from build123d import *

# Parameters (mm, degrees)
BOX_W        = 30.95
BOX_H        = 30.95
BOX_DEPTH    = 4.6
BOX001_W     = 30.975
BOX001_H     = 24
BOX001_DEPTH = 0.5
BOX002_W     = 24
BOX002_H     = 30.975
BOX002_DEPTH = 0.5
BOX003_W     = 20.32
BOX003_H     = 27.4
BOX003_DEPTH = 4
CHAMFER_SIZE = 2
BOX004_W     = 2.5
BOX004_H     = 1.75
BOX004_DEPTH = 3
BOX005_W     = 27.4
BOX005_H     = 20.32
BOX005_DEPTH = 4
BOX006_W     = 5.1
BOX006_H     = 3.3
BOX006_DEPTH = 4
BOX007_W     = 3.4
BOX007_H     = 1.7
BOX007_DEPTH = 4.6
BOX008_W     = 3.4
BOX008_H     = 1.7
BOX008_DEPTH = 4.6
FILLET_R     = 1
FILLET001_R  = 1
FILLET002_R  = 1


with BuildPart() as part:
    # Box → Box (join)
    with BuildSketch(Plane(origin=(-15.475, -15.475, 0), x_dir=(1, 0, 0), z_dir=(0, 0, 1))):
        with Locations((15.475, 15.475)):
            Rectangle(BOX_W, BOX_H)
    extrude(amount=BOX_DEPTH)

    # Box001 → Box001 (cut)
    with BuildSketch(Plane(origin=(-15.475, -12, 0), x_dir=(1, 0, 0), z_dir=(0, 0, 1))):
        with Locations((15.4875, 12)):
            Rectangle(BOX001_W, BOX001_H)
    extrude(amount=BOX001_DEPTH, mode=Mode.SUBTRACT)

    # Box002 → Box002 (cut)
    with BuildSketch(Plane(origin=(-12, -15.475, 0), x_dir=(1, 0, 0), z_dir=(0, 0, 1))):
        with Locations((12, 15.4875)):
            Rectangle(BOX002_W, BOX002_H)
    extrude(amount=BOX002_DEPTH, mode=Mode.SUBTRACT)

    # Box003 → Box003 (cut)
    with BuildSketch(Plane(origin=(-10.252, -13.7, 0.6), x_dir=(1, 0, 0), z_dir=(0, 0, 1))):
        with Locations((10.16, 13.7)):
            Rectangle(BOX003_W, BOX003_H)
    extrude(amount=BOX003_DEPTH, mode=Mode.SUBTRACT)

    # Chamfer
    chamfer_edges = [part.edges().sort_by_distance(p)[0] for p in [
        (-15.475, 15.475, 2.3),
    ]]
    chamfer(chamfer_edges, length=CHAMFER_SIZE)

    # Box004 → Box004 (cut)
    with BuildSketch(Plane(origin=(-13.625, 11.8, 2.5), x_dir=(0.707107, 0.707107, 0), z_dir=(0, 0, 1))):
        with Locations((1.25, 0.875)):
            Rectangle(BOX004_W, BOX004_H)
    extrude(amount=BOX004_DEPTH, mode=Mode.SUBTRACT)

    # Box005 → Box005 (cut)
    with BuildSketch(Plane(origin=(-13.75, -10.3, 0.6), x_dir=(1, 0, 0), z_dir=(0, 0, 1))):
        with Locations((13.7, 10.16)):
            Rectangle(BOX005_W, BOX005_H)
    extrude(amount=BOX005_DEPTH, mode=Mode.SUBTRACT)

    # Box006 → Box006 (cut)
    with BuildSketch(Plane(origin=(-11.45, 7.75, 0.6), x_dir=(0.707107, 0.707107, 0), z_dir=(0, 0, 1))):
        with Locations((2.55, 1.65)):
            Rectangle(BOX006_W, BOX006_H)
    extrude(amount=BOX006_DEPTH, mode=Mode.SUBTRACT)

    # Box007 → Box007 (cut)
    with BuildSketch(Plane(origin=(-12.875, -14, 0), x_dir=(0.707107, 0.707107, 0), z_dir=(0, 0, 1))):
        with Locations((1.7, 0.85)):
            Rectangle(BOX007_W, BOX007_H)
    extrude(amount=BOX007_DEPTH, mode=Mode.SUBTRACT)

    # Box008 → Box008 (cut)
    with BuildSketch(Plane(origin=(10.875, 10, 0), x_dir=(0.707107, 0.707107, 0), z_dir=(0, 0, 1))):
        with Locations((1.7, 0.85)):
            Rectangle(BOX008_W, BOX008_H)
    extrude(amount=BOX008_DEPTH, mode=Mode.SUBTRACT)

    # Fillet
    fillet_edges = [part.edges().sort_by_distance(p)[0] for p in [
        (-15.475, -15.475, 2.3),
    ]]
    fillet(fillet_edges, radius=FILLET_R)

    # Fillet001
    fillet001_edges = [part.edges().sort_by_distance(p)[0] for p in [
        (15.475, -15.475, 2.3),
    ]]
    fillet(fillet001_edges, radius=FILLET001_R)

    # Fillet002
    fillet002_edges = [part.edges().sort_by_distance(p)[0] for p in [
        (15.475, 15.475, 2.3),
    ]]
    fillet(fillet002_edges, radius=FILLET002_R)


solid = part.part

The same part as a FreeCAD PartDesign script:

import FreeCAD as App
import Part
import Sketcher
from FreeCAD import Vector
Q = App.Units.Quantity


def edges_at(feature, points):
    """Names of the edges that pass closest to the given points."""
    edges = feature.Shape.Edges
    near = lambda p: min(range(len(edges)), key=lambda i: edges[i].distToShape(Part.Vertex(*p))[0])
    return sorted({f"Edge{near(p) + 1}" for p in points})

doc = App.newDocument("Part")
body = doc.addObject("PartDesign::Body", "Body")

sketch1 = body.newObject("Sketcher::SketchObject", "Sketch")
sketch1.AttachmentSupport = (doc.getObject("XY_Plane"), [""])
sketch1.MapMode = "FlatFace"
sketch1.addGeometry(Part.LineSegment(Vector(-15, 15, 0), Vector(-15, -15, 0)), False)
sketch1.addGeometry(Part.LineSegment(Vector(-15, -15, 0), Vector(15, -15, 0)), False)
sketch1.addGeometry(Part.LineSegment(Vector(15, -15, 0), Vector(15, 15, 0)), False)
sketch1.addGeometry(Part.LineSegment(Vector(15, 15, 0), Vector(-15, 15, 0)), False)
sketch1.addConstraint(Sketcher.Constraint("Coincident", 0, 2, 1, 1))
sketch1.addConstraint(Sketcher.Constraint("Coincident", 1, 2, 2, 1))
sketch1.addConstraint(Sketcher.Constraint("Coincident", 2, 2, 3, 1))
sketch1.addConstraint(Sketcher.Constraint("Coincident", 3, 2, 0, 1))
sketch1.addConstraint(Sketcher.Constraint("Vertical", 0))
sketch1.addConstraint(Sketcher.Constraint("Horizontal", 1))
sketch1.addConstraint(Sketcher.Constraint("Vertical", 2))
sketch1.addConstraint(Sketcher.Constraint("Horizontal", 3))
sketch1.addConstraint(Sketcher.Constraint("Symmetric", 0, 2, 2, 2, -1, 1))
sketch1.addConstraint(Sketcher.Constraint("Equal", 3, 0))
sketch1.addConstraint(Sketcher.Constraint("DistanceX", 1, 1, 1, 2, Q("30.95 mm")))
pad1 = body.newObject("PartDesign::Pad", "Pad")
pad1.Profile = sketch1
pad1.Length = 4.6

sketch2 = body.newObject("Sketcher::SketchObject", "Sketch001")
sketch2.AttachmentSupport = (doc.getObject("XY_Plane"), [""])
sketch2.MapMode = "FlatFace"
sketch2.addGeometry(Part.LineSegment(Vector(-15, 12, 0), Vector(-15, -12, 0)), False)
sketch2.addGeometry(Part.LineSegment(Vector(-15, -12, 0), Vector(16, -12, 0)), False)
sketch2.addGeometry(Part.LineSegment(Vector(16, -12, 0), Vector(16, 12, 0)), False)
sketch2.addGeometry(Part.LineSegment(Vector(16, 12, 0), Vector(-15, 12, 0)), False)
sketch2.addConstraint(Sketcher.Constraint("Coincident", 0, 2, 1, 1))
sketch2.addConstraint(Sketcher.Constraint("Coincident", 1, 2, 2, 1))
sketch2.addConstraint(Sketcher.Constraint("Coincident", 2, 2, 3, 1))
sketch2.addConstraint(Sketcher.Constraint("Coincident", 3, 2, 0, 1))
sketch2.addConstraint(Sketcher.Constraint("Vertical", 0))
sketch2.addConstraint(Sketcher.Constraint("Horizontal", 1))
sketch2.addConstraint(Sketcher.Constraint("Vertical", 2))
sketch2.addConstraint(Sketcher.Constraint("Horizontal", 3))
sketch2.addConstraint(Sketcher.Constraint("DistanceY", 0, 2, 0, 1, Q("24 mm")))
sketch2.addConstraint(Sketcher.Constraint("DistanceY", 0, 2, -1, 1, Q("12 mm")))
sketch2.addConstraint(Sketcher.Constraint("DistanceX", -1, 1, 1, 2, Q("15.5 mm")))
sketch2.addConstraint(Sketcher.Constraint("DistanceX", 1, 1, 1, 2, Q("30.975 mm")))
pocket1 = body.newObject("PartDesign::Pocket", "Pocket")
pocket1.Profile = sketch2
pocket1.Length = 0.5
pocket1.Reversed = True

sketch3 = body.newObject("Sketcher::SketchObject", "Sketch002")
sketch3.AttachmentSupport = (doc.getObject("XY_Plane"), [""])
sketch3.MapMode = "FlatFace"
sketch3.addGeometry(Part.LineSegment(Vector(-12, 16, 0), Vector(-12, -15, 0)), False)
sketch3.addGeometry(Part.LineSegment(Vector(-12, -15, 0), Vector(12, -15, 0)), False)
sketch3.addGeometry(Part.LineSegment(Vector(12, -15, 0), Vector(12, 16, 0)), False)
sketch3.addGeometry(Part.LineSegment(Vector(12, 16, 0), Vector(-12, 16, 0)), False)
sketch3.addConstraint(Sketcher.Constraint("Coincident", 0, 2, 1, 1))
sketch3.addConstraint(Sketcher.Constraint("Coincident", 1, 2, 2, 1))
sketch3.addConstraint(Sketcher.Constraint("Coincident", 2, 2, 3, 1))
sketch3.addConstraint(Sketcher.Constraint("Coincident", 3, 2, 0, 1))
sketch3.addConstraint(Sketcher.Constraint("Vertical", 0))
sketch3.addConstraint(Sketcher.Constraint("Horizontal", 1))
sketch3.addConstraint(Sketcher.Constraint("Vertical", 2))
sketch3.addConstraint(Sketcher.Constraint("Horizontal", 3))
sketch3.addConstraint(Sketcher.Constraint("DistanceX", 1, 1, 1, 2, Q("24 mm")))
sketch3.addConstraint(Sketcher.Constraint("DistanceX", 0, 2, -1, 1, Q("12 mm")))
sketch3.addConstraint(Sketcher.Constraint("DistanceY", -1, 1, 2, 2, Q("15.5 mm")))
sketch3.addConstraint(Sketcher.Constraint("DistanceY", 0, 2, 0, 1, Q("30.975 mm")))
pocket2 = body.newObject("PartDesign::Pocket", "Pocket001")
pocket2.Profile = sketch3
pocket2.Length = 0.5
pocket2.Reversed = True

sketch4 = body.newObject("Sketcher::SketchObject", "Sketch003")
sketch4.AttachmentSupport = (doc.getObject("XY_Plane"), [""])
sketch4.MapMode = "FlatFace"
sketch4.AttachmentOffset = App.Placement(Vector(0, 0, 0.6), App.Rotation())
sketch4.addGeometry(Part.LineSegment(Vector(-10, 14, 0), Vector(-10, -14, 0)), False)
sketch4.addGeometry(Part.LineSegment(Vector(-10, -14, 0), Vector(10, -14, 0)), False)
sketch4.addGeometry(Part.LineSegment(Vector(10, -14, 0), Vector(10, 14, 0)), False)
sketch4.addGeometry(Part.LineSegment(Vector(10, 14, 0), Vector(-10, 14, 0)), False)
sketch4.addConstraint(Sketcher.Constraint("Coincident", 0, 2, 1, 1))
sketch4.addConstraint(Sketcher.Constraint("Coincident", 1, 2, 2, 1))
sketch4.addConstraint(Sketcher.Constraint("Coincident", 2, 2, 3, 1))
sketch4.addConstraint(Sketcher.Constraint("Coincident", 3, 2, 0, 1))
sketch4.addConstraint(Sketcher.Constraint("Vertical", 0))
sketch4.addConstraint(Sketcher.Constraint("Horizontal", 1))
sketch4.addConstraint(Sketcher.Constraint("Vertical", 2))
sketch4.addConstraint(Sketcher.Constraint("Horizontal", 3))
sketch4.addConstraint(Sketcher.Constraint("DistanceY", 0, 2, 0, 1, Q("27.4 mm")))
sketch4.addConstraint(Sketcher.Constraint("DistanceX", 1, 1, 1, 2, Q("20.32 mm")))
sketch4.addConstraint(Sketcher.Constraint("DistanceY", 0, 2, -1, 1, Q("13.7 mm")))
sketch4.addConstraint(Sketcher.Constraint("DistanceX", 0, 2, -1, 1, Q("10.252 mm")))
pocket3 = body.newObject("PartDesign::Pocket", "Pocket002")
pocket3.Profile = sketch4
pocket3.Length = 4
pocket3.Reversed = True
doc.recompute()

chamfer = body.newObject("PartDesign::Chamfer", "Chamfer")
chamfer.Base = (pocket3, edges_at(pocket3, [(-15.475, 15.475, 2.3)]))
chamfer.Size = 2

sketch5 = body.newObject("Sketcher::SketchObject", "Sketch004")
sketch5.AttachmentSupport = (doc.getObject("XY_Plane"), [""])
sketch5.MapMode = "FlatFace"
sketch5.AttachmentOffset = App.Placement(Vector(0, 0, 2.5), App.Rotation())
sketch5.addGeometry(Part.LineSegment(Vector(-14.9, 13, 0), Vector(-13.6, 11.8, 0)), False)
sketch5.addGeometry(Part.LineSegment(Vector(-13.6, 11.8, 0), Vector(-11.9, 13.6, 0)), False)
sketch5.addGeometry(Part.LineSegment(Vector(-11.9, 13.6, 0), Vector(-13.1, 14.8, 0)), False)
sketch5.addGeometry(Part.LineSegment(Vector(-13.1, 14.8, 0), Vector(-14.9, 13, 0)), False)
sketch5.addConstraint(Sketcher.Constraint("Coincident", 0, 2, 1, 1))
sketch5.addConstraint(Sketcher.Constraint("Coincident", 1, 2, 2, 1))
sketch5.addConstraint(Sketcher.Constraint("Coincident", 2, 2, 3, 1))
sketch5.addConstraint(Sketcher.Constraint("Coincident", 3, 2, 0, 1))
sketch5.addConstraint(Sketcher.Constraint("Perpendicular", 0, 1))
sketch5.addConstraint(Sketcher.Constraint("Perpendicular", 1, 2))
sketch5.addConstraint(Sketcher.Constraint("Perpendicular", 2, 3))
sketch5.addConstraint(Sketcher.Constraint("Angle", 0, Q("-45 deg")))
sketch5.addConstraint(Sketcher.Constraint("Distance", 1, Q("2.5 mm")))
sketch5.addConstraint(Sketcher.Constraint("DistanceY", -1, 1, 0, 2, Q("11.8 mm")))
sketch5.addConstraint(Sketcher.Constraint("Distance", 0, Q("1.75 mm")))
sketch5.addConstraint(Sketcher.Constraint("DistanceX", 0, 2, -1, 1, Q("13.625 mm")))
pocket4 = body.newObject("PartDesign::Pocket", "Pocket003")
pocket4.Profile = sketch5
pocket4.Length = 3
pocket4.Reversed = True

sketch6 = body.newObject("Sketcher::SketchObject", "Sketch005")
sketch6.AttachmentSupport = (doc.getObject("XY_Plane"), [""])
sketch6.MapMode = "FlatFace"
sketch6.AttachmentOffset = App.Placement(Vector(0, 0, 0.6), App.Rotation())
sketch6.addGeometry(Part.LineSegment(Vector(-14, 10, 0), Vector(-14, -10, 0)), False)
sketch6.addGeometry(Part.LineSegment(Vector(-14, -10, 0), Vector(14, -10, 0)), False)
sketch6.addGeometry(Part.LineSegment(Vector(14, -10, 0), Vector(14, 10, 0)), False)
sketch6.addGeometry(Part.LineSegment(Vector(14, 10, 0), Vector(-14, 10, 0)), False)
sketch6.addConstraint(Sketcher.Constraint("Coincident", 0, 2, 1, 1))
sketch6.addConstraint(Sketcher.Constraint("Coincident", 1, 2, 2, 1))
sketch6.addConstraint(Sketcher.Constraint("Coincident", 2, 2, 3, 1))
sketch6.addConstraint(Sketcher.Constraint("Coincident", 3, 2, 0, 1))
sketch6.addConstraint(Sketcher.Constraint("Vertical", 0))
sketch6.addConstraint(Sketcher.Constraint("Horizontal", 1))
sketch6.addConstraint(Sketcher.Constraint("Vertical", 2))
sketch6.addConstraint(Sketcher.Constraint("Horizontal", 3))
sketch6.addConstraint(Sketcher.Constraint("DistanceX", 1, 1, 1, 2, Q("27.4 mm")))
sketch6.addConstraint(Sketcher.Constraint("DistanceY", 0, 2, 0, 1, Q("20.32 mm")))
sketch6.addConstraint(Sketcher.Constraint("DistanceY", 0, 2, -1, 1, Q("10.3 mm")))
sketch6.addConstraint(Sketcher.Constraint("DistanceX", 0, 2, -1, 1, Q("13.75 mm")))
pocket5 = body.newObject("PartDesign::Pocket", "Pocket004")
pocket5.Profile = sketch6
pocket5.Length = 4
pocket5.Reversed = True

sketch7 = body.newObject("Sketcher::SketchObject", "Sketch006")
sketch7.AttachmentSupport = (doc.getObject("XY_Plane"), [""])
sketch7.MapMode = "FlatFace"
sketch7.AttachmentOffset = App.Placement(Vector(0, 0, 0.6), App.Rotation())
sketch7.addGeometry(Part.LineSegment(Vector(-13.8, 10.1, 0), Vector(-11.4, 7.8, 0)), False)
sketch7.addGeometry(Part.LineSegment(Vector(-11.4, 7.8, 0), Vector(-7.8, 11.4, 0)), False)
sketch7.addGeometry(Part.LineSegment(Vector(-7.8, 11.4, 0), Vector(-10.2, 13.7, 0)), False)
sketch7.addGeometry(Part.LineSegment(Vector(-10.2, 13.7, 0), Vector(-13.8, 10.1, 0)), False)
sketch7.addConstraint(Sketcher.Constraint("Coincident", 0, 2, 1, 1))
sketch7.addConstraint(Sketcher.Constraint("Coincident", 1, 2, 2, 1))
sketch7.addConstraint(Sketcher.Constraint("Coincident", 2, 2, 3, 1))
sketch7.addConstraint(Sketcher.Constraint("Coincident", 3, 2, 0, 1))
sketch7.addConstraint(Sketcher.Constraint("Perpendicular", 0, 1))
sketch7.addConstraint(Sketcher.Constraint("Perpendicular", 1, 2))
sketch7.addConstraint(Sketcher.Constraint("Perpendicular", 2, 3))
sketch7.addConstraint(Sketcher.Constraint("Angle", 0, Q("-45 deg")))
sketch7.addConstraint(Sketcher.Constraint("Distance", 0, Q("3.3 mm")))
sketch7.addConstraint(Sketcher.Constraint("Distance", 1, Q("5.1 mm")))
sketch7.addConstraint(Sketcher.Constraint("DistanceX", 0, 2, -1, 1, Q("11.45 mm")))
sketch7.addConstraint(Sketcher.Constraint("DistanceY", -1, 1, 0, 2, Q("7.75 mm")))
pocket6 = body.newObject("PartDesign::Pocket", "Pocket005")
pocket6.Profile = sketch7
pocket6.Length = 4
pocket6.Reversed = True

sketch8 = body.newObject("Sketcher::SketchObject", "Sketch007")
sketch8.AttachmentSupport = (doc.getObject("XY_Plane"), [""])
sketch8.MapMode = "FlatFace"
sketch8.addGeometry(Part.LineSegment(Vector(-14.1, -12.8, 0), Vector(-12.9, -14, 0)), False)
sketch8.addGeometry(Part.LineSegment(Vector(-12.9, -14, 0), Vector(-10.5, -11.6, 0)), False)
sketch8.addGeometry(Part.LineSegment(Vector(-10.5, -11.6, 0), Vector(-11.7, -10.4, 0)), False)
sketch8.addGeometry(Part.LineSegment(Vector(-11.7, -10.4, 0), Vector(-14.1, -12.8, 0)), False)
sketch8.addConstraint(Sketcher.Constraint("Coincident", 0, 2, 1, 1))
sketch8.addConstraint(Sketcher.Constraint("Coincident", 1, 2, 2, 1))
sketch8.addConstraint(Sketcher.Constraint("Coincident", 2, 2, 3, 1))
sketch8.addConstraint(Sketcher.Constraint("Coincident", 3, 2, 0, 1))
sketch8.addConstraint(Sketcher.Constraint("Perpendicular", 0, 1))
sketch8.addConstraint(Sketcher.Constraint("Perpendicular", 1, 2))
sketch8.addConstraint(Sketcher.Constraint("Perpendicular", 2, 3))
sketch8.addConstraint(Sketcher.Constraint("Angle", 0, Q("-45 deg")))
sketch8.addConstraint(Sketcher.Constraint("DistanceY", 0, 2, -1, 1, Q("14 mm")))
sketch8.addConstraint(Sketcher.Constraint("Distance", 0, Q("1.7 mm")))
sketch8.addConstraint(Sketcher.Constraint("Distance", 1, Q("3.4 mm")))
sketch8.addConstraint(Sketcher.Constraint("DistanceX", 0, 2, -1, 1, Q("12.875 mm")))
pocket7 = body.newObject("PartDesign::Pocket", "Pocket006")
pocket7.Profile = sketch8
pocket7.Length = 4.6
pocket7.Reversed = True

sketch9 = body.newObject("Sketcher::SketchObject", "Sketch008")
sketch9.AttachmentSupport = (doc.getObject("XY_Plane"), [""])
sketch9.MapMode = "FlatFace"
sketch9.addGeometry(Part.LineSegment(Vector(9.7, 11.2, 0), Vector(10.9, 10, 0)), False)
sketch9.addGeometry(Part.LineSegment(Vector(10.9, 10, 0), Vector(13.3, 12.4, 0)), False)
sketch9.addGeometry(Part.LineSegment(Vector(13.3, 12.4, 0), Vector(12.1, 13.6, 0)), False)
sketch9.addGeometry(Part.LineSegment(Vector(12.1, 13.6, 0), Vector(9.7, 11.2, 0)), False)
sketch9.addConstraint(Sketcher.Constraint("Coincident", 0, 2, 1, 1))
sketch9.addConstraint(Sketcher.Constraint("Coincident", 1, 2, 2, 1))
sketch9.addConstraint(Sketcher.Constraint("Coincident", 2, 2, 3, 1))
sketch9.addConstraint(Sketcher.Constraint("Coincident", 3, 2, 0, 1))
sketch9.addConstraint(Sketcher.Constraint("Perpendicular", 0, 1))
sketch9.addConstraint(Sketcher.Constraint("Perpendicular", 1, 2))
sketch9.addConstraint(Sketcher.Constraint("Perpendicular", 2, 3))
sketch9.addConstraint(Sketcher.Constraint("Angle", 0, Q("-45 deg")))
sketch9.addConstraint(Sketcher.Constraint("DistanceY", -1, 1, 0, 2, Q("10 mm")))
sketch9.addConstraint(Sketcher.Constraint("Distance", 0, Q("1.7 mm")))
sketch9.addConstraint(Sketcher.Constraint("Distance", 1, Q("3.4 mm")))
sketch9.addConstraint(Sketcher.Constraint("DistanceX", -1, 1, 0, 2, Q("10.875 mm")))
pocket8 = body.newObject("PartDesign::Pocket", "Pocket007")
pocket8.Profile = sketch9
pocket8.Length = 4.6
pocket8.Reversed = True
doc.recompute()

fillet = body.newObject("PartDesign::Fillet", "Fillet")
fillet.Base = (pocket8, edges_at(pocket8, [(-15.475, -15.475, 2.3)]))
fillet.Radius = 1
doc.recompute()

fillet2 = body.newObject("PartDesign::Fillet", "Fillet001")
fillet2.Base = (fillet, edges_at(fillet, [(15.475, -15.475, 2.3)]))
fillet2.Radius = 1
doc.recompute()

fillet3 = body.newObject("PartDesign::Fillet", "Fillet002")
fillet3.Base = (fillet2, edges_at(fillet2, [(15.475, 15.475, 2.3)]))
fillet3.Radius = 1

doc.recompute()
